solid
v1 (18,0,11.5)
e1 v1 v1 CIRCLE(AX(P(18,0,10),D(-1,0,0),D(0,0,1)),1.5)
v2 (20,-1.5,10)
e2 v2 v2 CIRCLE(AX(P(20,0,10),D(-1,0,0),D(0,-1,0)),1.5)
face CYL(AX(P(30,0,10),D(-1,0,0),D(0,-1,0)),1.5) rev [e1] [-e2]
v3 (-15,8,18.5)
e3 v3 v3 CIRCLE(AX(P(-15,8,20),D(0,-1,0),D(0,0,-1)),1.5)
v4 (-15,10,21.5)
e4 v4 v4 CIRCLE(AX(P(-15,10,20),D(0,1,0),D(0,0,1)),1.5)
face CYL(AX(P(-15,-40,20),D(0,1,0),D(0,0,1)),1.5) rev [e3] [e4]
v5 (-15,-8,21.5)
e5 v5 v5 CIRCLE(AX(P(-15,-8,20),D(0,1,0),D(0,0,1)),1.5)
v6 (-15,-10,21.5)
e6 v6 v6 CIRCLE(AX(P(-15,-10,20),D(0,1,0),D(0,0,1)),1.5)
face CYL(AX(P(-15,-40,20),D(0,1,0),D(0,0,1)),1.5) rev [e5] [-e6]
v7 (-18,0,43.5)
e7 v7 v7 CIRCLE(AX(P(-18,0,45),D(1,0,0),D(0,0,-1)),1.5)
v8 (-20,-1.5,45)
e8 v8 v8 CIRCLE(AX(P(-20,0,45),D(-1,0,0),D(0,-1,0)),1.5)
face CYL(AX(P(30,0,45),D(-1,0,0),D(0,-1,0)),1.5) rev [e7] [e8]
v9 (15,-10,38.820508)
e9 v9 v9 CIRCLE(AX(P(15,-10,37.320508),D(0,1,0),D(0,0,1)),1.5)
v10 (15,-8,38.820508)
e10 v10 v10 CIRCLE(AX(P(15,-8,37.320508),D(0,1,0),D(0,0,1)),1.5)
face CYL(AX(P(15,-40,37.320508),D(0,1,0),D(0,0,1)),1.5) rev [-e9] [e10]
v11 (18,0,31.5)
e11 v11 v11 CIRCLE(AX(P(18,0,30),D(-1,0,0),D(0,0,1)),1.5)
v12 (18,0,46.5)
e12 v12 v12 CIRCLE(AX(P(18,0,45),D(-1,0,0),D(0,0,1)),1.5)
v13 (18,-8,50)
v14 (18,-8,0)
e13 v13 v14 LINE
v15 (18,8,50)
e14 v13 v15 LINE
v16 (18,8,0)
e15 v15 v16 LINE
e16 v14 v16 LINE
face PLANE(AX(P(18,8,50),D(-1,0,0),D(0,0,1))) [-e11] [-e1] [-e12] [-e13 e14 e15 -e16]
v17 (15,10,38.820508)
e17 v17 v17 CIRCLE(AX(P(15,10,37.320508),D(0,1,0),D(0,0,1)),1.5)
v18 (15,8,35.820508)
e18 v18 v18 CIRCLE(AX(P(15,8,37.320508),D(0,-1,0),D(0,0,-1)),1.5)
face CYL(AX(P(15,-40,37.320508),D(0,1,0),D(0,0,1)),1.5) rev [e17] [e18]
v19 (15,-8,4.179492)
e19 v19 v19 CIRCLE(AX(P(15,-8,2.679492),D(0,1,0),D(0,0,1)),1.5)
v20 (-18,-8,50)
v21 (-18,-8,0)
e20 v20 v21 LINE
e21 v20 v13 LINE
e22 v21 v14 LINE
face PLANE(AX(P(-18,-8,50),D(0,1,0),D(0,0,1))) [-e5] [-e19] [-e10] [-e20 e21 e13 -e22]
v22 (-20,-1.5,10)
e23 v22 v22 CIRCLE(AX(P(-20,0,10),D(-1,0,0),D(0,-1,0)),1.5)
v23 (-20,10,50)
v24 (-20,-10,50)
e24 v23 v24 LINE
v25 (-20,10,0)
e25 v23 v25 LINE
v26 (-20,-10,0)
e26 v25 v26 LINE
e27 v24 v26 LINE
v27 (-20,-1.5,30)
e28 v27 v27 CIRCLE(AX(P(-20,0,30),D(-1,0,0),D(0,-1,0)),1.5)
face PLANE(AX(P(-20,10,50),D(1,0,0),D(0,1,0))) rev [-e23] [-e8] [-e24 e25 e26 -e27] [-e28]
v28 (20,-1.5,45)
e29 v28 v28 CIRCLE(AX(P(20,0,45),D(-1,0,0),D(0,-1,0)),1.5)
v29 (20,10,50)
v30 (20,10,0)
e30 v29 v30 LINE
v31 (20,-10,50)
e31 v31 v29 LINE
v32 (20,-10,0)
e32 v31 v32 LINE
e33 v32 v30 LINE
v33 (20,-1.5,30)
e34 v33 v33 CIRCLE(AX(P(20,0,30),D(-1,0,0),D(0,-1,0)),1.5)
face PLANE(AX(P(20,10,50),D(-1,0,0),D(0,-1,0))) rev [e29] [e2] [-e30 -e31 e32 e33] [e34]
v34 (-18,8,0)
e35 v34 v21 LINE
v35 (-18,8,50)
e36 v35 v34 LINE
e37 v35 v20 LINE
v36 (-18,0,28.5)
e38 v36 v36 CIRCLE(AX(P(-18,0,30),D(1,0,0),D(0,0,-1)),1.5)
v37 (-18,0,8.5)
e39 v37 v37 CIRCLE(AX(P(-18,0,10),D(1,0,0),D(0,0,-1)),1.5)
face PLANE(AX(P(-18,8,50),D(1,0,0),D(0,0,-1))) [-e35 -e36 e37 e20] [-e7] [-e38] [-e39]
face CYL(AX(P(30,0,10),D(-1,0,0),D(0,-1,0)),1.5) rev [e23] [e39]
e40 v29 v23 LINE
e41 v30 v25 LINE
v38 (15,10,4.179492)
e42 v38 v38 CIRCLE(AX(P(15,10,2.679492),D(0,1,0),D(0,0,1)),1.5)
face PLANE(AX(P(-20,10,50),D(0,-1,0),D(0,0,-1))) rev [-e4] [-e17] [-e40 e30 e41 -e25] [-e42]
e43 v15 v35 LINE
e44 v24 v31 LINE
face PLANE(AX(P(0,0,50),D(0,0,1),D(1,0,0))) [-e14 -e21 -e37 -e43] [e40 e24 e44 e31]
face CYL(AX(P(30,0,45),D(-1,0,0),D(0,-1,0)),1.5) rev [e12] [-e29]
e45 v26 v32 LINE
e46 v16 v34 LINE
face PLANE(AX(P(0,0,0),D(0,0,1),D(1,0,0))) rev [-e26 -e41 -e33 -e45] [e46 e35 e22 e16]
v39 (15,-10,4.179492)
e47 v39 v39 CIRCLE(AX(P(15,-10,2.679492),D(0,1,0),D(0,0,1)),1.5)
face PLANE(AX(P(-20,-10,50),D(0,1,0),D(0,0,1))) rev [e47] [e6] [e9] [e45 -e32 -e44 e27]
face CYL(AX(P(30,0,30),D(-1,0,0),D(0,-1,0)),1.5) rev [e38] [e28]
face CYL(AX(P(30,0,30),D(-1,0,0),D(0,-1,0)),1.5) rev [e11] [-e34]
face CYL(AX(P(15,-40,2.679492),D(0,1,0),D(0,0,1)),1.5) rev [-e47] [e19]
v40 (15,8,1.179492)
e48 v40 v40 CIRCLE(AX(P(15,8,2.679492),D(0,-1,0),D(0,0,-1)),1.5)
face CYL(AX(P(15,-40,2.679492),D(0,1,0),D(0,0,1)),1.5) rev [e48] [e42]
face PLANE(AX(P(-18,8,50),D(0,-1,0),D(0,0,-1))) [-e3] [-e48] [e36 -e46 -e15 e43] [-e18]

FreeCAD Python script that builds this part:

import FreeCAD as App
import Part
import Sketcher
from FreeCAD import Vector
Q = App.Units.Quantity

doc = App.newDocument("Part")
body = doc.addObject("PartDesign::Body", "Body")

sketch1 = body.newObject("Sketcher::SketchObject", "Sketch")
sketch1.AttachmentSupport = (doc.getObject("XY_Plane"), [""])
sketch1.MapMode = "FlatFace"
sketch1.addGeometry([
    Part.LineSegment(Vector(-20, 10, 0), Vector(-20, -10, 0)),
    Part.LineSegment(Vector(-20, -10, 0), Vector(20, -10, 0)),
    Part.LineSegment(Vector(20, -10, 0), Vector(20, 10, 0)),
    Part.LineSegment(Vector(20, 10, 0), Vector(-20, 10, 0)),
    Part.LineSegment(Vector(18, -8, 0), Vector(-18, -8, 0)),
    Part.LineSegment(Vector(-18, -8, 0), Vector(-18, 8, 0)),
    Part.LineSegment(Vector(-18, 8, 0), Vector(18, 8, 0)),
    Part.LineSegment(Vector(18, 8, 0), Vector(18, -8, 0)),
], False)
sketch1.addConstraint([
    Sketcher.Constraint("Coincident", 0, 2, 1, 1),
    Sketcher.Constraint("Coincident", 1, 2, 2, 1),
    Sketcher.Constraint("Coincident", 2, 2, 3, 1),
    Sketcher.Constraint("Coincident", 3, 2, 0, 1),
    Sketcher.Constraint("Coincident", 4, 2, 5, 1),
    Sketcher.Constraint("Coincident", 5, 2, 6, 1),
    Sketcher.Constraint("Coincident", 6, 2, 7, 1),
    Sketcher.Constraint("Coincident", 7, 2, 4, 1),
    Sketcher.Constraint("Vertical", 0),
    Sketcher.Constraint("Horizontal", 1),
    Sketcher.Constraint("Vertical", 2),
    Sketcher.Constraint("Horizontal", 3),
    Sketcher.Constraint("Horizontal", 4),
    Sketcher.Constraint("Vertical", 5),
    Sketcher.Constraint("Horizontal", 6),
    Sketcher.Constraint("Vertical", 7),
    Sketcher.Constraint("Symmetric", 0, 2, 2, 2, -1, 1),
    Sketcher.Constraint("Symmetric", 4, 2, 6, 2, -1, 1),
    Sketcher.Constraint("DistanceX", 1, 1, 1, 2, Q("40 mm")),
    Sketcher.Constraint("DistanceX", 4, 2, 4, 1, Q("36 mm")),
    Sketcher.Constraint("DistanceY", 0, 2, 0, 1, Q("20 mm")),
    Sketcher.Constraint("DistanceY", 5, 1, 5, 2, Q("16 mm")),
])
pad1 = body.newObject("PartDesign::Pad", "Pad")
pad1.Profile = sketch1
pad1.Length = 50

sketch2 = body.newObject("Sketcher::SketchObject", "Sketch001")
sketch2.AttachmentSupport = (doc.getObject("XZ_Plane"), [""])
sketch2.MapMode = "FlatFace"
sketch2.AttachmentOffset = App.Placement(Vector(0, 0, -10), App.Rotation())
sketch2.addGeometry([
    Part.Circle(Vector(-15, 20, 0), Vector(0, 0, 1), 1.5),
    Part.Circle(Vector(15, 2.7, 0), Vector(0, 0, 1), 1.5),
    Part.Circle(Vector(15, 37.3, 0), Vector(0, 0, 1), 1.5),
], False)
sketch2.addConstraint([
    Sketcher.Constraint("Equal", 0, 1),
    Sketcher.Constraint("Equal", 1, 2),
    Sketcher.Constraint("Vertical", 1, 3, 2, 3),
    Sketcher.Constraint("Diameter", 0, Q("3 mm")),
    Sketcher.Constraint("DistanceX", 0, 3, -1, 1, Q("15 mm")),
    Sketcher.Constraint("DistanceY", -1, 1, 0, 3, Q("20 mm")),
    Sketcher.Constraint("DistanceX", -1, 1, 1, 3, Q("15 mm")),
    Sketcher.Constraint("DistanceY", -1, 1, 1, 3, Q("2.679492 mm")),
    Sketcher.Constraint("DistanceY", -1, 1, 2, 3, Q("37.320508 mm")),
])
pocket1 = body.newObject("PartDesign::Pocket", "Pocket")
pocket1.Profile = sketch2
pocket1.Length = 50
pocket1.Reversed = True

sketch3 = body.newObject("Sketcher::SketchObject", "Sketch002")
sketch3.AttachmentSupport = (doc.getObject("YZ_Plane"), [""])
sketch3.MapMode = "FlatFace"
sketch3.AttachmentOffset = App.Placement(Vector(0, 0, -20), App.Rotation())
sketch3.addGeometry([
    Part.Circle(Vector(0, 10, 0), Vector(0, 0, 1), 1.5),
    Part.Circle(Vector(0, 30, 0), Vector(0, 0, 1), 1.5),
    Part.Circle(Vector(0, 45, 0), Vector(0, 0, 1), 1.5),
], False)
sketch3.addConstraint([
    Sketcher.Constraint("Equal", 0, 1),
    Sketcher.Constraint("Equal", 1, 2),
    Sketcher.Constraint("PointOnObject", 0, 3, -2),
    Sketcher.Constraint("PointOnObject", 1, 3, -2),
    Sketcher.Constraint("PointOnObject", 2, 3, -2),
    Sketcher.Constraint("Diameter", 0, Q("3 mm")),
    Sketcher.Constraint("DistanceY", -1, 1, 0, 3, Q("10 mm")),
    Sketcher.Constraint("DistanceY", -1, 1, 1, 3, Q("30 mm")),
    Sketcher.Constraint("DistanceY", -1, 1, 2, 3, Q("45 mm")),
])
pocket2 = body.newObject("PartDesign::Pocket", "Pocket001")
pocket2.Profile = sketch3
pocket2.Length = 50
pocket2.Reversed = True

doc.recompute()
